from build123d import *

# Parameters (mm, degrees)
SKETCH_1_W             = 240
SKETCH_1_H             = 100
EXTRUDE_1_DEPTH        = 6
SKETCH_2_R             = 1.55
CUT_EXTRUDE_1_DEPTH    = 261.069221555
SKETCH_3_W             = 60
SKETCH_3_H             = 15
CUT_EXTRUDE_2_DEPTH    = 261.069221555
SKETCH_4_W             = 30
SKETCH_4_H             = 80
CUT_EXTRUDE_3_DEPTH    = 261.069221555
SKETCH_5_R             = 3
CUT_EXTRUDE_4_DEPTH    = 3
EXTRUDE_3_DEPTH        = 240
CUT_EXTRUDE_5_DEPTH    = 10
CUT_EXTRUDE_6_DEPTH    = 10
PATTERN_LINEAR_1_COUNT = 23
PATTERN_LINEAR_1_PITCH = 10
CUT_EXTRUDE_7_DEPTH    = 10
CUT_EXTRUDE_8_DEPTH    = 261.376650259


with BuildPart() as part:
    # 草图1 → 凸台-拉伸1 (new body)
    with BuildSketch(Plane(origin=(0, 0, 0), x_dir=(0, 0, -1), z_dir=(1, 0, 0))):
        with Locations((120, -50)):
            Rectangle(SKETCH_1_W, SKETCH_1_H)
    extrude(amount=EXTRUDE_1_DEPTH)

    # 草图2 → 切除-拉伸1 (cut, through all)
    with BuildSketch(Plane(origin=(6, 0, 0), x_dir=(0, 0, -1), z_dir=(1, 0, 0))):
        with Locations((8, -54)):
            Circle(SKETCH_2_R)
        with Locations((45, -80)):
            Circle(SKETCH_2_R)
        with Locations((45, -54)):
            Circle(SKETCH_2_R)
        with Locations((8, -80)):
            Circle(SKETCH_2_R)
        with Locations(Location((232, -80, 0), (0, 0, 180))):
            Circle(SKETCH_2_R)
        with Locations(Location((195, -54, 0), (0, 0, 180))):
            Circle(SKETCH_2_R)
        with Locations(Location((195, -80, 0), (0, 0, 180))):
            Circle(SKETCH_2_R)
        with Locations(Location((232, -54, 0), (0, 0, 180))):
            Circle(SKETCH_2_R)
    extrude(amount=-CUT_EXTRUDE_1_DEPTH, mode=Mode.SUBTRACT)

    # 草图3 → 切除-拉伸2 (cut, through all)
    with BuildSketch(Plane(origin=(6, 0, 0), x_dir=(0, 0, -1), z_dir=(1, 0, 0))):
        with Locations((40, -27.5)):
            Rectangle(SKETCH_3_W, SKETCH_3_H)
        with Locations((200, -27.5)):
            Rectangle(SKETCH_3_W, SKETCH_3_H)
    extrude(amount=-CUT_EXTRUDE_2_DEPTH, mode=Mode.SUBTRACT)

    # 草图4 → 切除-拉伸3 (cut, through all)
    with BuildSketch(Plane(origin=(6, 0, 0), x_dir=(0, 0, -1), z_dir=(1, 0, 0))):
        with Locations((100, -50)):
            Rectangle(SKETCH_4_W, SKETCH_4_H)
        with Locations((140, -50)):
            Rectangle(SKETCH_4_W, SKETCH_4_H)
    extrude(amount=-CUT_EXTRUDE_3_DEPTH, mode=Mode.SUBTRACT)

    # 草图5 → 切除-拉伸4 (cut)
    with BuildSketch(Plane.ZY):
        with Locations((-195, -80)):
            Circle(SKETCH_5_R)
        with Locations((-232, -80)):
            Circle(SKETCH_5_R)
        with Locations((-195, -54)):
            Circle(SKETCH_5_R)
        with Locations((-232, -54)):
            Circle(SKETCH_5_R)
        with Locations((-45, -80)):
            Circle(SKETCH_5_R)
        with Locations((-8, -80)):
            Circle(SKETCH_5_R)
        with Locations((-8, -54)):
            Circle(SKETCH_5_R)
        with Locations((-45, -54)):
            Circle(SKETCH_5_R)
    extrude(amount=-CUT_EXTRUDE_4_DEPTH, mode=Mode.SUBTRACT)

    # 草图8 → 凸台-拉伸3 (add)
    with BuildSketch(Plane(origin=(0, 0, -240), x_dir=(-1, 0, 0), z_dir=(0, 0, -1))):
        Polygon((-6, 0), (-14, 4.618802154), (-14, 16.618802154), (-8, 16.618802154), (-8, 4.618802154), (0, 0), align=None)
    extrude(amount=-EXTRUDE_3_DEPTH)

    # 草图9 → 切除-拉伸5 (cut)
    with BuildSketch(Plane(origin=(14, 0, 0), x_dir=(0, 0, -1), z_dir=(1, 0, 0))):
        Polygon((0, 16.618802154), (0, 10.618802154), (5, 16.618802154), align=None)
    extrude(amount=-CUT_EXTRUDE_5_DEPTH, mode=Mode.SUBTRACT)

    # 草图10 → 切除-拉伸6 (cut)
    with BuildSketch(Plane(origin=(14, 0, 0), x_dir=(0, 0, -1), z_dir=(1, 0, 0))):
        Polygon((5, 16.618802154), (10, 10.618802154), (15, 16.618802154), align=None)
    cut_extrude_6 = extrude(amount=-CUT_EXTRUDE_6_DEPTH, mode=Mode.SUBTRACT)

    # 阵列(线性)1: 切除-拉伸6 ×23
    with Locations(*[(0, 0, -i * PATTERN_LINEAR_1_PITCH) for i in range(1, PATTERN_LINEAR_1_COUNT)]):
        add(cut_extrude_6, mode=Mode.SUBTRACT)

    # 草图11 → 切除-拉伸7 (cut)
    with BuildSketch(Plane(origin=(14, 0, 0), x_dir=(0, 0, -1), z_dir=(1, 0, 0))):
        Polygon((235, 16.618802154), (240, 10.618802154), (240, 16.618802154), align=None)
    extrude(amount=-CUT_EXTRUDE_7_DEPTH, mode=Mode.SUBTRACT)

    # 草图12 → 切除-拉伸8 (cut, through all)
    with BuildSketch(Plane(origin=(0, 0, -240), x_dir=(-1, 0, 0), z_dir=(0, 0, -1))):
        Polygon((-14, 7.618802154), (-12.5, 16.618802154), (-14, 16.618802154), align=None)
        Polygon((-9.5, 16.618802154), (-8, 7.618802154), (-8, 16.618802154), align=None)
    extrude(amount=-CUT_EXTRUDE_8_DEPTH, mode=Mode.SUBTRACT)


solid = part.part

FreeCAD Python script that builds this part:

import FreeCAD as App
import Part
import Sketcher
from FreeCAD import Vector
Q = App.Units.Quantity

doc = App.newDocument("Part")
body = doc.addObject("PartDesign::Body", "Body")

# Sketch on YZ plane
sketch1 = doc.addObject("Sketcher::SketchObject", "Sketch")
body.addObject(sketch1)
sketch1.AttachmentSupport = (doc.YZ_Plane, [""])
sketch1.MapMode = "FlatFace"
sketch1.addGeometry([
    Part.LineSegment(Vector(0, 0, 0), Vector(-100, 0, 0)),
    Part.LineSegment(Vector(-100, 0, 0), Vector(-100, -240, 0)),
    Part.LineSegment(Vector(-100, -240, 0), Vector(0, -240, 0)),
    Part.LineSegment(Vector(0, -240, 0), Vector(0, 0, 0)),
], False)
sketch1.addConstraint([
    Sketcher.Constraint("Coincident", 0, 2, 1, 1),
    Sketcher.Constraint("Coincident", 1, 2, 2, 1),
    Sketcher.Constraint("Coincident", 2, 2, 3, 1),
    Sketcher.Constraint("Coincident", 3, 2, 0, 1),
    Sketcher.Constraint("Horizontal", 0),
    Sketcher.Constraint("Vertical", 1),
    Sketcher.Constraint("Horizontal", 2),
    Sketcher.Constraint("Vertical", 3),
    Sketcher.Constraint("Coincident", 3, 2, -1, 1),
    Sketcher.Constraint("DistanceX", 0, 2, 0, 1, Q("100 mm")),
    Sketcher.Constraint("DistanceY", 1, 2, 1, 1, Q("240 mm")),
])
pad1 = doc.addObject("PartDesign::Pad", "Pad")
body.addObject(pad1)
pad1.Profile = sketch1
pad1.Length = 6

# Sketch on YZ plane
sketch2 = doc.addObject("Sketcher::SketchObject", "Sketch001")
body.addObject(sketch2)
sketch2.AttachmentSupport = (doc.YZ_Plane, [""])
sketch2.MapMode = "FlatFace"
sketch2.AttachmentOffset = App.Placement(Vector(0, 0, 6), App.Rotation())
sketch2.addGeometry([
    Part.Circle(Vector(-54, -8, 0), Vector(0, 0, 1), 1.6),  # 0
    Part.Circle(Vector(-80, -45, 0), Vector(0, 0, 1), 1.6),  # 1
    Part.Circle(Vector(-54, -45, 0), Vector(0, 0, 1), 1.6),  # 2
    Part.Circle(Vector(-80, -8, 0), Vector(0, 0, 1), 1.6),  # 3
    Part.Circle(Vector(-80, -232, 0), Vector(0, 0, 1), 1.6),  # 4
    Part.Circle(Vector(-54, -195, 0), Vector(0, 0, 1), 1.6),  # 5
    Part.Circle(Vector(-80, -195, 0), Vector(0, 0, 1), 1.6),  # 6
    Part.Circle(Vector(-54, -232, 0), Vector(0, 0, 1), 1.6),  # 7
], False)
sketch2.addConstraint([
    Sketcher.Constraint("Equal", 0, 1),
    Sketcher.Constraint("Equal", 1, 2),
    Sketcher.Constraint("Equal", 2, 3),
    Sketcher.Constraint("Equal", 3, 4),
    Sketcher.Constraint("Equal", 4, 5),
    Sketcher.Constraint("Equal", 5, 6),
    Sketcher.Constraint("Equal", 6, 7),
    Sketcher.Constraint("Horizontal", 1, 3, 2, 3),
    Sketcher.Constraint("Horizontal", 0, 3, 3, 3),
    Sketcher.Constraint("Horizontal", 5, 3, 6, 3),
    Sketcher.Constraint("Horizontal", 4, 3, 7, 3),
    Sketcher.Constraint("Vertical", 0, 3, 2, 3),
    Sketcher.Constraint("Vertical", 1, 3, 3, 3),
    Sketcher.Constraint("Vertical", 3, 3, 4, 3),
    Sketcher.Constraint("Vertical", 2, 3, 5, 3),
    Sketcher.Constraint("Vertical", 4, 3, 6, 3),
    Sketcher.Constraint("Vertical", 5, 3, 7, 3),
    Sketcher.Constraint("Diameter", 0, Q("3.1 mm")),
    Sketcher.Constraint("DistanceX", 0, 3, -1, 1, Q("54 mm")),
    Sketcher.Constraint("DistanceY", 0, 3, -1, 1, Q("8 mm")),
    Sketcher.Constraint("DistanceX", 1, 3, -1, 1, Q("80 mm")),
    Sketcher.Constraint("DistanceY", 1, 3, -1, 1, Q("45 mm")),
    Sketcher.Constraint("DistanceY", 4, 3, -1, 1, Q("232 mm")),
    Sketcher.Constraint("DistanceY", 5, 3, -1, 1, Q("195 mm")),
])
pocket1 = doc.addObject("PartDesign::Pocket", "Pocket")
body.addObject(pocket1)
pocket1.Profile = sketch2
pocket1.Type = "ThroughAll"

# Sketch on YZ plane
sketch3 = doc.addObject("Sketcher::SketchObject", "Sketch002")
body.addObject(sketch3)
sketch3.AttachmentSupport = (doc.YZ_Plane, [""])
sketch3.MapMode = "FlatFace"
sketch3.AttachmentOffset = App.Placement(Vector(0, 0, 6), App.Rotation())
sketch3.addGeometry([
    Part.LineSegment(Vector(-20, -10, 0), Vector(-35, -10, 0)),  # 0
    Part.LineSegment(Vector(-35, -10, 0), Vector(-35, -70, 0)),  # 1
    Part.LineSegment(Vector(-35, -70, 0), Vector(-20, -70, 0)),  # 2
    Part.LineSegment(Vector(-20, -70, 0), Vector(-20, -10, 0)),  # 3
    Part.LineSegment(Vector(-20, -170, 0), Vector(-35, -170, 0)),  # 4
    Part.LineSegment(Vector(-35, -170, 0), Vector(-35, -230, 0)),  # 5
    Part.LineSegment(Vector(-35, -230, 0), Vector(-20, -230, 0)),  # 6
    Part.LineSegment(Vector(-20, -230, 0), Vector(-20, -170, 0)),  # 7
], False)
sketch3.addConstraint([
    Sketcher.Constraint("Coincident", 0, 2, 1, 1),
    Sketcher.Constraint("Coincident", 1, 2, 2, 1),
    Sketcher.Constraint("Coincident", 2, 2, 3, 1),
    Sketcher.Constraint("Coincident", 3, 2, 0, 1),
    Sketcher.Constraint("Coincident", 4, 2, 5, 1),
    Sketcher.Constraint("Coincident", 5, 2, 6, 1),
    Sketcher.Constraint("Coincident", 6, 2, 7, 1),
    Sketcher.Constraint("Coincident", 7, 2, 4, 1),
    Sketcher.Constraint("Horizontal", 0),
    Sketcher.Constraint("Vertical", 1),
    Sketcher.Constraint("Horizontal", 2),
    Sketcher.Constraint("Vertical", 3),
    Sketcher.Constraint("Horizontal", 4),
    Sketcher.Constraint("Vertical", 5),
    Sketcher.Constraint("Horizontal", 6),
    Sketcher.Constraint("Vertical", 7),
    Sketcher.Constraint("Vertical", 1, 2, 4, 2),
    Sketcher.Constraint("Vertical", 3, 2, 6, 2),
    Sketcher.Constraint("Equal", 3, 5),
    Sketcher.Constraint("DistanceX", 0, 2, 0, 1, Q("15 mm")),
    Sketcher.Constraint("DistanceY", 1, 2, 1, 1, Q("60 mm")),
    Sketcher.Constraint("DistanceX", 0, 2, -1, 1, Q("35 mm")),
    Sketcher.Constraint("DistanceY", 0, 2, -1, 1, Q("10 mm")),
    Sketcher.Constraint("DistanceY", 4, 2, -1, 1, Q("170 mm")),
])
pocket2 = doc.addObject("PartDesign::Pocket", "Pocket001")
body.addObject(pocket2)
pocket2.Profile = sketch3
pocket2.Type = "ThroughAll"

# Sketch on YZ plane
sketch4 = doc.addObject("Sketcher::SketchObject", "Sketch003")
body.addObject(sketch4)
sketch4.AttachmentSupport = (doc.YZ_Plane, [""])
sketch4.MapMode = "FlatFace"
sketch4.AttachmentOffset = App.Placement(Vector(0, 0, 6), App.Rotation())
sketch4.addGeometry([
    Part.LineSegment(Vector(-10, -85, 0), Vector(-90, -85, 0)),  # 0
    Part.LineSegment(Vector(-90, -85, 0), Vector(-90, -115, 0)),  # 1
    Part.LineSegment(Vector(-90, -115, 0), Vector(-10, -115, 0)),  # 2
    Part.LineSegment(Vector(-10, -115, 0), Vector(-10, -85, 0)),  # 3
    Part.LineSegment(Vector(-10, -125, 0), Vector(-90, -125, 0)),  # 4
    Part.LineSegment(Vector(-90, -125, 0), Vector(-90, -155, 0)),  # 5
    Part.LineSegment(Vector(-90, -155, 0), Vector(-10, -155, 0)),  # 6
    Part.LineSegment(Vector(-10, -155, 0), Vector(-10, -125, 0)),  # 7
], False)
sketch4.addConstraint([
    Sketcher.Constraint("Coincident", 0, 2, 1, 1),
    Sketcher.Constraint("Coincident", 1, 2, 2, 1),
    Sketcher.Constraint("Coincident", 2, 2, 3, 1),
    Sketcher.Constraint("Coincident", 3, 2, 0, 1),
    Sketcher.Constraint("Coincident", 4, 2, 5, 1),
    Sketcher.Constraint("Coincident", 5, 2, 6, 1),
    Sketcher.Constraint("Coincident", 6, 2, 7, 1),
    Sketcher.Constraint("Coincident", 7, 2, 4, 1),
    Sketcher.Constraint("Horizontal", 0),
    Sketcher.Constraint("Vertical", 1),
    Sketcher.Constraint("Horizontal", 2),
    Sketcher.Constraint("Vertical", 3),
    Sketcher.Constraint("Horizontal", 4),
    Sketcher.Constraint("Vertical", 5),
    Sketcher.Constraint("Horizontal", 6),
    Sketcher.Constraint("Vertical", 7),
    Sketcher.Constraint("Vertical", 1, 2, 4, 2),
    Sketcher.Constraint("Vertical", 3, 2, 6, 2),
    Sketcher.Constraint("Equal", 3, 5),
    Sketcher.Constraint("DistanceX", 0, 2, 0, 1, Q("80 mm")),
    Sketcher.Constraint("DistanceY", 1, 2, 1, 1, Q("30 mm")),
    Sketcher.Constraint("DistanceX", 0, 2, -1, 1, Q("90 mm")),
    Sketcher.Constraint("DistanceY", 0, 2, -1, 1, Q("85 mm")),
    Sketcher.Constraint("DistanceY", 4, 2, -1, 1, Q("125 mm")),
])
pocket3 = doc.addObject("PartDesign::Pocket", "Pocket002")
body.addObject(pocket3)
pocket3.Profile = sketch4
pocket3.Type = "ThroughAll"

# Sketch on YZ plane
sketch5 = doc.addObject("Sketcher::SketchObject", "Sketch004")
body.addObject(sketch5)
sketch5.AttachmentSupport = (doc.YZ_Plane, [""])
sketch5.MapMode = "FlatFace"
sketch5.addGeometry([
    Part.Circle(Vector(-80, -195, 0), Vector(0, 0, 1), 3),  # 0
    Part.Circle(Vector(-80, -232, 0), Vector(0, 0, 1), 3),  # 1
    Part.Circle(Vector(-54, -195, 0), Vector(0, 0, 1), 3),  # 2
    Part.Circle(Vector(-54, -232, 0), Vector(0, 0, 1), 3),  # 3
    Part.Circle(Vector(-80, -45, 0), Vector(0, 0, 1), 3),  # 4
    Part.Circle(Vector(-80, -8, 0), Vector(0, 0, 1), 3),  # 5
    Part.Circle(Vector(-54, -8, 0), Vector(0, 0, 1), 3),  # 6
    Part.Circle(Vector(-54, -45, 0), Vector(0, 0, 1), 3),  # 7
], False)
sketch5.addConstraint([
    Sketcher.Constraint("Equal", 0, 1),
    Sketcher.Constraint("Equal", 1, 2),
    Sketcher.Constraint("Equal", 2, 3),
    Sketcher.Constraint("Equal", 3, 4),
    Sketcher.Constraint("Equal", 4, 5),
    Sketcher.Constraint("Equal", 5, 6),
    Sketcher.Constraint("Equal", 6, 7),
    Sketcher.Constraint("Horizontal", 0, 3, 2, 3),
    Sketcher.Constraint("Horizontal", 1, 3, 3, 3),
    Sketcher.Constraint("Horizontal", 5, 3, 6, 3),
    Sketcher.Constraint("Horizontal", 4, 3, 7, 3),
    Sketcher.Constraint("Vertical", 0, 3, 1, 3),
    Sketcher.Constraint("Vertical", 2, 3, 3, 3),
    Sketcher.Constraint("Vertical", 1, 3, 4, 3),
    Sketcher.Constraint("Vertical", 4, 3, 5, 3),
    Sketcher.Constraint("Vertical", 3, 3, 6, 3),
    Sketcher.Constraint("Vertical", 6, 3, 7, 3),
    Sketcher.Constraint("Diameter", 0, Q("6 mm")),
    Sketcher.Constraint("DistanceX", 0, 3, -1, 1, Q("80 mm")),
    Sketcher.Constraint("DistanceY", 0, 3, -1, 1, Q("195 mm")),
    Sketcher.Constraint("DistanceY", 1, 3, -1, 1, Q("232 mm")),
    Sketcher.Constraint("DistanceX", 2, 3, -1, 1, Q("54 mm")),
    Sketcher.Constraint("DistanceY", 4, 3, -1, 1, Q("45 mm")),
    Sketcher.Constraint("DistanceY", 5, 3, -1, 1, Q("8 mm")),
])
pocket4 = doc.addObject("PartDesign::Pocket", "Pocket003")
body.addObject(pocket4)
pocket4.Profile = sketch5
pocket4.Length = 3
pocket4.Reversed = True

# Sketch on XY plane
sketch6 = doc.addObject("Sketcher::SketchObject", "Sketch005")
body.addObject(sketch6)
sketch6.AttachmentSupport = (doc.XY_Plane, [""])
sketch6.MapMode = "FlatFace"
sketch6.AttachmentOffset = App.Placement(Vector(0, 0, -240), App.Rotation())
sketch6.addGeometry([
    Part.LineSegment(Vector(14, 5, 0), Vector(6, 0, 0)),  # 0
    Part.LineSegment(Vector(6, 0, 0), Vector(0, 0, 0)),  # 1
    Part.LineSegment(Vector(0, 0, 0), Vector(8, 5, 0)),  # 2
    Part.LineSegment(Vector(8, 5, 0), Vector(8, 17, 0)),  # 3
    Part.LineSegment(Vector(8, 17, 0), Vector(14, 17, 0)),  # 4
    Part.LineSegment(Vector(14, 17, 0), Vector(14, 5, 0)),  # 5
], False)
sketch6.addConstraint([
    Sketcher.Constraint("Coincident", 0, 2, 1, 1),
    Sketcher.Constraint("Coincident", 1, 2, 2, 1),
    Sketcher.Constraint("Coincident", 2, 2, 3, 1),
    Sketcher.Constraint("Coincident", 3, 2, 4, 1),
    Sketcher.Constraint("Coincident", 4, 2, 5, 1),
    Sketcher.Constraint("Coincident", 5, 2, 0, 1),
    Sketcher.Constraint("Horizontal", 1),
    Sketcher.Constraint("Vertical", 3),
    Sketcher.Constraint("Horizontal", 4),
    Sketcher.Constraint("Vertical", 5),
    Sketcher.Constraint("Coincident", 1, 2, -1, 1),
    Sketcher.Constraint("Parallel", 0, 2),
    Sketcher.Constraint("Horizontal", 2, 2, 5, 2),
    Sketcher.Constraint("DistanceX", 1, 2, 1, 1, Q("6 mm")),
    Sketcher.Constraint("DistanceY", 3, 1, 3, 2, Q("12 mm")),
    Sketcher.Constraint("Angle", 0, Q("-150 deg")),
    Sketcher.Constraint("DistanceX", -1, 1, 2, 2, Q("8 mm")),
])
pad2 = doc.addObject("PartDesign::Pad", "Pad001")
body.addObject(pad2)
pad2.Profile = sketch6
pad2.Length = 240

# Sketch on YZ plane
sketch7 = doc.addObject("Sketcher::SketchObject", "Sketch006")
body.addObject(sketch7)
sketch7.AttachmentSupport = (doc.YZ_Plane, [""])
sketch7.MapMode = "FlatFace"
sketch7.AttachmentOffset = App.Placement(Vector(0, 0, 14), App.Rotation())
sketch7.addGeometry([
    Part.LineSegment(Vector(17, 0, 0), Vector(11, 0, 0)),
    Part.LineSegment(Vector(11, 0, 0), Vector(17, -5, 0)),
    Part.LineSegment(Vector(17, -5, 0), Vector(17, 0, 0)),
], False)
sketch7.addConstraint([
    Sketcher.Constraint("Coincident", 0, 2, 1, 1),
    Sketcher.Constraint("Coincident", 1, 2, 2, 1),
    Sketcher.Constraint("Coincident", 2, 2, 0, 1),
    Sketcher.Constraint("Horizontal", 0),
    Sketcher.Constraint("Vertical", 2),
    Sketcher.Constraint("PointOnObject", 0, 2, -1),
    Sketcher.Constraint("DistanceX", 0, 2, 0, 1, Q("6 mm")),
    Sketcher.Constraint("DistanceY", 2, 1, 2, 2, Q("5 mm")),
    Sketcher.Constraint("DistanceX", -1, 1, 0, 2, Q("10.618802 mm")),
])
pocket5 = doc.addObject("PartDesign::Pocket", "Pocket004")
body.addObject(pocket5)
pocket5.Profile = sketch7
pocket5.Length = 10

# Sketch on YZ plane
sketch8 = doc.addObject("Sketcher::SketchObject", "Sketch007")
body.addObject(sketch8)
sketch8.AttachmentSupport = (doc.YZ_Plane, [""])
sketch8.MapMode = "FlatFace"
sketch8.AttachmentOffset = App.Placement(Vector(0, 0, 14), App.Rotation())
sketch8.addGeometry([
    Part.LineSegment(Vector(17, -5, 0), Vector(11, -10, 0)),
    Part.LineSegment(Vector(11, -10, 0), Vector(17, -15, 0)),
    Part.LineSegment(Vector(17, -15, 0), Vector(17, -5, 0)),
], False)
sketch8.addConstraint([
    Sketcher.Constraint("Coincident", 0, 2, 1, 1),
    Sketcher.Constraint("Coincident", 1, 2, 2, 1),
    Sketcher.Constraint("Coincident", 2, 2, 0, 1),
    Sketcher.Constraint("Vertical", 2),
    Sketcher.Constraint("Equal", 0, 1),
    Sketcher.Constraint("DistanceY", 2, 1, 2, 2, Q("10 mm")),
    Sketcher.Constraint("DistanceY", 0, 2, -1, 1, Q("10 mm")),
    Sketcher.Constraint("DistanceX", 0, 2, 1, 2, Q("6 mm")),
    Sketcher.Constraint("DistanceX", -1, 1, 0, 2, Q("10.618802 mm")),
])
pocket6 = doc.addObject("PartDesign::Pocket", "Pocket005")
body.addObject(pocket6)
pocket6.Profile = sketch8
pocket6.Length = 10
doc.recompute()

linearpattern = doc.addObject("PartDesign::LinearPattern", "LinearPattern")
body.addObject(linearpattern)
linearpattern.Originals = [pocket6]
linearpattern.Direction = (doc.Z_Axis, [""])
linearpattern.Mode = "offset"
linearpattern.Offset = 10
linearpattern.Occurrences = 23
linearpattern.Reversed = True
body.Tip = linearpattern

# Sketch on YZ plane
sketch9 = doc.addObject("Sketcher::SketchObject", "Sketch008")
body.addObject(sketch9)
sketch9.AttachmentSupport = (doc.YZ_Plane, [""])
sketch9.MapMode = "FlatFace"
sketch9.AttachmentOffset = App.Placement(Vector(0, 0, 14), App.Rotation())
sketch9.addGeometry([
    Part.LineSegment(Vector(17, -235, 0), Vector(11, -240, 0)),
    Part.LineSegment(Vector(11, -240, 0), Vector(17, -240, 0)),
    Part.LineSegment(Vector(17, -240, 0), Vector(17, -235, 0)),
], False)
sketch9.addConstraint([
    Sketcher.Constraint("Coincident", 0, 2, 1, 1),
    Sketcher.Constraint("Coincident", 1, 2, 2, 1),
    Sketcher.Constraint("Coincident", 2, 2, 0, 1),
    Sketcher.Constraint("Horizontal", 1),
    Sketcher.Constraint("Vertical", 2),
    Sketcher.Constraint("DistanceX", 1, 1, 1, 2, Q("6 mm")),
    Sketcher.Constraint("DistanceY", 2, 1, 2, 2, Q("5 mm")),
    Sketcher.Constraint("DistanceY", 0, 2, -1, 1, Q("240 mm")),
    Sketcher.Constraint("DistanceX", -1, 1, 0, 2, Q("10.618802 mm")),
])
pocket7 = doc.addObject("PartDesign::Pocket", "Pocket006")
body.addObject(pocket7)
pocket7.Profile = sketch9
pocket7.Length = 10

# Sketch on XY plane
sketch10 = doc.addObject("Sketcher::SketchObject", "Sketch009")
body.addObject(sketch10)
sketch10.AttachmentSupport = (doc.XY_Plane, [""])
sketch10.MapMode = "FlatFace"
sketch10.AttachmentOffset = App.Placement(Vector(0, 0, -240), App.Rotation())
sketch10.addGeometry([
    Part.LineSegment(Vector(14, 7.6, 0), Vector(12.5, 16.6, 0)),  # 0
    Part.LineSegment(Vector(12.5, 16.6, 0), Vector(14, 16.6, 0)),  # 1
    Part.LineSegment(Vector(14, 16.6, 0), Vector(14, 7.6, 0)),  # 2
    Part.LineSegment(Vector(9.5, 16.6, 0), Vector(8, 7.6, 0)),  # 3
    Part.LineSegment(Vector(8, 7.6, 0), Vector(8, 16.6, 0)),  # 4
    Part.LineSegment(Vector(8, 16.6, 0), Vector(9.5, 16.6, 0)),  # 5
], False)
sketch10.addConstraint([
    Sketcher.Constraint("Coincident", 0, 2, 1, 1),
    Sketcher.Constraint("Coincident", 1, 2, 2, 1),
    Sketcher.Constraint("Coincident", 2, 2, 0, 1),
    Sketcher.Constraint("Coincident", 3, 2, 4, 1),
    Sketcher.Constraint("Coincident", 4, 2, 5, 1),
    Sketcher.Constraint("Coincident", 5, 2, 3, 1),
    Sketcher.Constraint("Horizontal", 1),
    Sketcher.Constraint("Vertical", 2),
    Sketcher.Constraint("Vertical", 4),
    Sketcher.Constraint("Horizontal", 5),
    Sketcher.Constraint("Horizontal", 2, 2, 3, 2),
    Sketcher.Constraint("Horizontal", 1, 2, 4, 2),
    Sketcher.Constraint("Equal", 1, 5),
    Sketcher.Constraint("DistanceY", 2, 2, 2, 1, Q("9 mm")),
    Sketcher.Constraint("DistanceX", 1, 1, 1, 2, Q("1.5 mm")),
    Sketcher.Constraint("DistanceX", -1, 1, 1, 2, Q("14 mm")),
    Sketcher.Constraint("DistanceX", -1, 1, 3, 2, Q("8 mm")),
    Sketcher.Constraint("DistanceY", -1, 1, 0, 2, Q("16.618802 mm")),
])
pocket8 = doc.addObject("PartDesign::Pocket", "Pocket007")
body.addObject(pocket8)
pocket8.Profile = sketch10
pocket8.Type = "ThroughAll"
pocket8.Reversed = True

doc.recompute()
